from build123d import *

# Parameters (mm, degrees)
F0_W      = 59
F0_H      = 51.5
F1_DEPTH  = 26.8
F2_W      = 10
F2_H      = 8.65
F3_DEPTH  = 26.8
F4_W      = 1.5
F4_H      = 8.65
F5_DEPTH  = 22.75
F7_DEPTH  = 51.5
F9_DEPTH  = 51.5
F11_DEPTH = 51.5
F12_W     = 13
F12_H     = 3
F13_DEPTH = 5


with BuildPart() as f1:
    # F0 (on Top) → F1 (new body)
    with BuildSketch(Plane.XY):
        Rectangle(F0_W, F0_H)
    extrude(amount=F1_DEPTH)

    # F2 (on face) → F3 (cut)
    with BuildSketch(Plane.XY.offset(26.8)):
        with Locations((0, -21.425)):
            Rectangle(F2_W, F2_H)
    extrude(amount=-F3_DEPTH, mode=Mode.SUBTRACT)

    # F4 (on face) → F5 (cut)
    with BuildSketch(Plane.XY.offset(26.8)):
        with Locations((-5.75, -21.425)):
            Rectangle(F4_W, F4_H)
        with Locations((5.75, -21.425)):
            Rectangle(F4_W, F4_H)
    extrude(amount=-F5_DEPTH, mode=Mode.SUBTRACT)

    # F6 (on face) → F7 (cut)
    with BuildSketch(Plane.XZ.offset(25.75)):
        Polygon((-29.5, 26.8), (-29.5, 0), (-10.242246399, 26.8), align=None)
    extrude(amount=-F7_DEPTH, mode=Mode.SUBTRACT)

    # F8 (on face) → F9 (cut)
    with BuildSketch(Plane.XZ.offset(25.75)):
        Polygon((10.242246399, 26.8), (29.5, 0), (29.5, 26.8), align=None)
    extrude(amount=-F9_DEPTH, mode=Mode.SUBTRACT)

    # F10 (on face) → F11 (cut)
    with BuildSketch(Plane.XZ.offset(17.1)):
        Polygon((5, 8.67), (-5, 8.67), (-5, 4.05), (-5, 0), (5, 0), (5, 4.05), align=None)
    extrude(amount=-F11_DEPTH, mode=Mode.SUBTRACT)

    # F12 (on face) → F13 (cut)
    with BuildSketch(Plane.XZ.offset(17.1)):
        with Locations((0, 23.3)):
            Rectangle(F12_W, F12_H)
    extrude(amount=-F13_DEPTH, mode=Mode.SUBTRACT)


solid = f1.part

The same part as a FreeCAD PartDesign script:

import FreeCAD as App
import Part
import Sketcher

V = App.Vector
Q = App.Units.Quantity


def add_polygon(sketch, points):
    """Adds a closed chain of lines whose ends are joined by coincident constraints."""
    first, n = sketch.GeometryCount, len(points)
    for a, b in zip(points, points[1:] + points[:1]):
        sketch.addGeometry(Part.LineSegment(App.Vector(*a, 0), App.Vector(*b, 0)), False)
    for i in range(n):
        sketch.addConstraint(Sketcher.Constraint("Coincident", first + i, 2, first + (i + 1) % n, 1))

doc = App.newDocument("Part")
body = doc.addObject("PartDesign::Body", "Body")

# Sketch on XY plane
sketch1 = body.newObject("Sketcher::SketchObject", "Sketch")
sketch1.AttachmentSupport = (doc.getObject("XY_Plane"), [""])
sketch1.MapMode = "FlatFace"
add_polygon(sketch1, [(-30, 26), (-30, -26), (30, -26), (30, 26)])  # lines 0-3
sketch1.addConstraint([
    Sketcher.Constraint("Vertical", 0),
    Sketcher.Constraint("Horizontal", 1),
    Sketcher.Constraint("Vertical", 2),
    Sketcher.Constraint("Horizontal", 3),
    Sketcher.Constraint("Symmetric", 0, 2, 2, 2, -1, 1),
    Sketcher.Constraint("DistanceX", 1, 1, 1, 2, Q("59 mm")),
    Sketcher.Constraint("DistanceY", 0, 2, 0, 1, Q("51.5 mm")),
])
pad1 = body.newObject("PartDesign::Pad", "Pad")
pad1.Profile = sketch1
pad1.Length = 26.8

# Sketch on XY plane
sketch2 = body.newObject("Sketcher::SketchObject", "Sketch001")
sketch2.AttachmentSupport = (doc.getObject("XY_Plane"), [""])
sketch2.MapMode = "FlatFace"
sketch2.AttachmentOffset = App.Placement(V(0, 0, 26.8), App.Rotation())
add_polygon(sketch2, [(-5, -17), (-5, -26), (5, -26), (5, -17)])  # lines 0-3
sketch2.addConstraint([
    Sketcher.Constraint("Vertical", 0),
    Sketcher.Constraint("Horizontal", 1),
    Sketcher.Constraint("Vertical", 2),
    Sketcher.Constraint("Horizontal", 3),
    Sketcher.Constraint("DistanceX", 1, 1, 1, 2, Q("10 mm")),
    Sketcher.Constraint("DistanceX", 0, 2, -1, 1, Q("5 mm")),
    Sketcher.Constraint("DistanceY", 0, 2, 0, 1, Q("8.65 mm")),
    Sketcher.Constraint("DistanceY", 2, 2, -1, 1, Q("17.1 mm")),
])
pocket1 = body.newObject("PartDesign::Pocket", "Pocket")
pocket1.Profile = sketch2
pocket1.Length = 26.8

# Sketch on XY plane
sketch3 = body.newObject("Sketcher::SketchObject", "Sketch002")
sketch3.AttachmentSupport = (doc.getObject("XY_Plane"), [""])
sketch3.MapMode = "FlatFace"
sketch3.AttachmentOffset = App.Placement(V(0, 0, 26.8), App.Rotation())
add_polygon(sketch3, [(-6.5, -17.1), (-6.5, -25.8), (-5, -25.8), (-5, -17.1)])  # lines 0-3
add_polygon(sketch3, [(5, -17.1), (5, -25.8), (6.5, -25.8), (6.5, -17.1)])  # lines 4-7
sketch3.addConstraint([
    Sketcher.Constraint("Vertical", 0),
    Sketcher.Constraint("Horizontal", 1),
    Sketcher.Constraint("Vertical", 2),
    Sketcher.Constraint("Horizontal", 3),
    Sketcher.Constraint("Vertical", 4),
    Sketcher.Constraint("Horizontal", 5),
    Sketcher.Constraint("Vertical", 6),
    Sketcher.Constraint("Horizontal", 7),
    Sketcher.Constraint("Symmetric", 1, 2, 4, 2, -2),
    Sketcher.Constraint("Symmetric", 3, 2, 6, 2, -2),
    Sketcher.Constraint("DistanceX", 1, 1, 1, 2, Q("1.5 mm")),
    Sketcher.Constraint("DistanceX", 1, 2, -1, 1, Q("5 mm")),
    Sketcher.Constraint("DistanceY", 0, 2, 0, 1, Q("8.65 mm")),
    Sketcher.Constraint("DistanceY", 2, 2, -1, 1, Q("17.1 mm")),
])
pocket2 = body.newObject("PartDesign::Pocket", "Pocket001")
pocket2.Profile = sketch3
pocket2.Length = 22.75

# Sketch on XZ plane
sketch4 = body.newObject("Sketcher::SketchObject", "Sketch003")
sketch4.AttachmentSupport = (doc.getObject("XZ_Plane"), [""])
sketch4.MapMode = "FlatFace"
sketch4.AttachmentOffset = App.Placement(V(0, 0, 25.75), App.Rotation())
add_polygon(sketch4, [(-30, 27), (-30, 0), (-10, 27)])  # lines 0-2
sketch4.addConstraint([
    Sketcher.Constraint("Vertical", 0),
    Sketcher.Constraint("Horizontal", 2),
    Sketcher.Constraint("PointOnObject", 0, 2, -1),
    Sketcher.Constraint("DistanceY", 0, 2, 0, 1, Q("26.8 mm")),
    Sketcher.Constraint("Angle", 1, Q("54.3 deg")),
    Sketcher.Constraint("DistanceX", 0, 2, -1, 1, Q("29.5 mm")),
])
pocket3 = body.newObject("PartDesign::Pocket", "Pocket002")
pocket3.Profile = sketch4
pocket3.Length = 51.5

# Sketch on XZ plane
sketch5 = body.newObject("Sketcher::SketchObject", "Sketch004")
sketch5.AttachmentSupport = (doc.getObject("XZ_Plane"), [""])
sketch5.MapMode = "FlatFace"
sketch5.AttachmentOffset = App.Placement(V(0, 0, 25.75), App.Rotation())
add_polygon(sketch5, [(10, 27), (30, 0), (30, 27)])  # lines 0-2
sketch5.addConstraint([
    Sketcher.Constraint("Vertical", 1),
    Sketcher.Constraint("Horizontal", 2),
    Sketcher.Constraint("PointOnObject", 0, 2, -1),
    Sketcher.Constraint("DistanceY", 1, 1, 1, 2, Q("26.8 mm")),
    Sketcher.Constraint("Angle", 0, Q("-54.3 deg")),
    Sketcher.Constraint("DistanceX", -1, 1, 0, 2, Q("29.5 mm")),
])
pocket4 = body.newObject("PartDesign::Pocket", "Pocket003")
pocket4.Profile = sketch5
pocket4.Length = 51.5

# Sketch on XZ plane
sketch6 = body.newObject("Sketcher::SketchObject", "Sketch005")
sketch6.AttachmentSupport = (doc.getObject("XZ_Plane"), [""])
sketch6.MapMode = "FlatFace"
sketch6.AttachmentOffset = App.Placement(V(0, 0, 17.1), App.Rotation())
add_polygon(sketch6, [(5, 9), (-5, 9), (-5, 0), (5, 0)])  # lines 0-3
sketch6.addConstraint([
    Sketcher.Constraint("Horizontal", 0),
    Sketcher.Constraint("Vertical", 1),
    Sketcher.Constraint("Horizontal", 2),
    Sketcher.Constraint("Vertical", 3),
    Sketcher.Constraint("Symmetric", 1, 2, 2, 2, -1, 1),
    Sketcher.Constraint("DistanceX", 0, 2, 0, 1, Q("10 mm")),
    Sketcher.Constraint("DistanceY", 1, 2, 1, 1, Q("8.67 mm")),
])
pocket5 = body.newObject("PartDesign::Pocket", "Pocket004")
pocket5.Profile = sketch6
pocket5.Length = 51.5

# Sketch on XZ plane
sketch7 = body.newObject("Sketcher::SketchObject", "Sketch006")
sketch7.AttachmentSupport = (doc.getObject("XZ_Plane"), [""])
sketch7.MapMode = "FlatFace"
sketch7.AttachmentOffset = App.Placement(V(0, 0, 17.1), App.Rotation())
add_polygon(sketch7, [(-6.5, 24.8), (-6.5, 21.8), (6.5, 21.8), (6.5, 24.8)])  # lines 0-3
sketch7.addConstraint([
    Sketcher.Constraint("Vertical", 0),
    Sketcher.Constraint("Horizontal", 1),
    Sketcher.Constraint("Vertical", 2),
    Sketcher.Constraint("Horizontal", 3),
    Sketcher.Constraint("DistanceX", 1, 1, 1, 2, Q("13 mm")),
    Sketcher.Constraint("DistanceY", 0, 2, 0, 1, Q("3 mm")),
    Sketcher.Constraint("DistanceX", 0, 2, -1, 1, Q("6.5 mm")),
    Sketcher.Constraint("DistanceY", -1, 1, 0, 2, Q("21.8 mm")),
])
pocket6 = body.newObject("PartDesign::Pocket", "Pocket005")
pocket6.Profile = sketch7
pocket6.Length = 5

doc.recompute()
